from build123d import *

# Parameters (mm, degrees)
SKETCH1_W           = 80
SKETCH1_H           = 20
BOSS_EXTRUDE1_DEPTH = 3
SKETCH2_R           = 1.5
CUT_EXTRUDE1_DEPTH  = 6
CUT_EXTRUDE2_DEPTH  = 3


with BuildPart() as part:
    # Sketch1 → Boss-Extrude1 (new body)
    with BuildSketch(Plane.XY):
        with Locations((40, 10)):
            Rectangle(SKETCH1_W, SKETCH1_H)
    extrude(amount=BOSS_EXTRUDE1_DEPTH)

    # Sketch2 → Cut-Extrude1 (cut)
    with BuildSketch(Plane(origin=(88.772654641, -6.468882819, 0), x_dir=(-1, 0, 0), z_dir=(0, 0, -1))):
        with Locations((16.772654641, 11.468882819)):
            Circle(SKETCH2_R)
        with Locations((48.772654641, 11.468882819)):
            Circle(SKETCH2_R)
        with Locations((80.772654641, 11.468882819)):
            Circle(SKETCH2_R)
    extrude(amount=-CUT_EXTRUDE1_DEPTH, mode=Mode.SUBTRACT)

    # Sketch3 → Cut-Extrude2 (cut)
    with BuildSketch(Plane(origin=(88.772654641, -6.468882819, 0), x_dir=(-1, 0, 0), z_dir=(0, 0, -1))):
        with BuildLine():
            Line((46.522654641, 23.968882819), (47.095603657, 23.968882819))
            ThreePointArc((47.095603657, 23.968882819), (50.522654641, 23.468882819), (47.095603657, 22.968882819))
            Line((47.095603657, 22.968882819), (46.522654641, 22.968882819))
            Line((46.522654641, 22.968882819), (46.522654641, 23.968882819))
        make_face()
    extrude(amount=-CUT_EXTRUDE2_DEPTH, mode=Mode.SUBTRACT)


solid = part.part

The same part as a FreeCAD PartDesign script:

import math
import FreeCAD as App
import Part
import Sketcher
from FreeCAD import Vector
Q = App.Units.Quantity

doc = App.newDocument("Part")
body = doc.addObject("PartDesign::Body", "Body")

# Sketch on XY plane
sketch1 = body.newObject("Sketcher::SketchObject", "Sketch")
sketch1.AttachmentSupport = (doc.getObject("XY_Plane"), [""])
sketch1.MapMode = "FlatFace"
sketch1.addGeometry([
    Part.LineSegment(Vector(0, 20, 0), Vector(0, 0, 0)),
    Part.LineSegment(Vector(0, 0, 0), Vector(80, 0, 0)),
    Part.LineSegment(Vector(80, 0, 0), Vector(80, 20, 0)),
    Part.LineSegment(Vector(80, 20, 0), Vector(0, 20, 0)),
], False)
sketch1.addConstraint([
    Sketcher.Constraint("Coincident", 0, 2, 1, 1),
    Sketcher.Constraint("Coincident", 1, 2, 2, 1),
    Sketcher.Constraint("Coincident", 2, 2, 3, 1),
    Sketcher.Constraint("Coincident", 3, 2, 0, 1),
    Sketcher.Constraint("Vertical", 0),
    Sketcher.Constraint("Horizontal", 1),
    Sketcher.Constraint("Vertical", 2),
    Sketcher.Constraint("Horizontal", 3),
    Sketcher.Constraint("Coincident", 0, 2, -1, 1),
    Sketcher.Constraint("DistanceX", 1, 1, 1, 2, Q("80 mm")),
    Sketcher.Constraint("DistanceY", 0, 2, 0, 1, Q("20 mm")),
])
pad1 = body.newObject("PartDesign::Pad", "Pad")
pad1.Profile = sketch1
pad1.Length = 3

# Sketch on XY plane
sketch2 = body.newObject("Sketcher::SketchObject", "Sketch001")
sketch2.AttachmentSupport = (doc.getObject("XY_Plane"), [""])
sketch2.MapMode = "FlatFace"
sketch2.addGeometry([
    Part.Circle(Vector(72, 5, 0), Vector(0, 0, 1), 1.5),
    Part.Circle(Vector(40, 5, 0), Vector(0, 0, 1), 1.5),
    Part.Circle(Vector(8, 5, 0), Vector(0, 0, 1), 1.5),
], False)
sketch2.addConstraint([
    Sketcher.Constraint("Equal", 0, 1),
    Sketcher.Constraint("Equal", 1, 2),
    Sketcher.Constraint("Horizontal", 0, 3, 1, 3),
    Sketcher.Constraint("Horizontal", 1, 3, 2, 3),
    Sketcher.Constraint("Diameter", 0, Q("3 mm")),
    Sketcher.Constraint("DistanceX", -1, 1, 0, 3, Q("72 mm")),
    Sketcher.Constraint("DistanceY", -1, 1, 0, 3, Q("5 mm")),
    Sketcher.Constraint("DistanceX", -1, 1, 1, 3, Q("40 mm")),
    Sketcher.Constraint("DistanceX", -1, 1, 2, 3, Q("8 mm")),
])
pocket1 = body.newObject("PartDesign::Pocket", "Pocket")
pocket1.Profile = sketch2
pocket1.Length = 6
pocket1.Reversed = True

# Sketch on XY plane
sketch3 = body.newObject("Sketcher::SketchObject", "Sketch002")
sketch3.AttachmentSupport = (doc.getObject("XY_Plane"), [""])
sketch3.MapMode = "FlatFace"
sketch3.addGeometry([
    Part.LineSegment(Vector(41.7, 17.5, 0), Vector(42.2, 17.5, 0)),
    Part.LineSegment(Vector(42.2, 17.5, 0), Vector(42.2, 16.5, 0)),
    Part.LineSegment(Vector(42.2, 16.5, 0), Vector(41.7, 16.5, 0)),
    Part.ArcOfCircle(Part.Circle(Vector(40, 17, 0), Vector(0, 0, 1), 1.8), math.radians(17), math.radians(343)),
], False)
sketch3.addConstraint([
    Sketcher.Constraint("Coincident", 0, 2, 1, 1),
    Sketcher.Constraint("Coincident", 1, 2, 2, 1),
    Sketcher.Constraint("Coincident", 2, 2, 3, 2),
    Sketcher.Constraint("Coincident", 3, 1, 0, 1),
    Sketcher.Constraint("Horizontal", 0),
    Sketcher.Constraint("Vertical", 1),
    Sketcher.Constraint("Horizontal", 2),
    Sketcher.Constraint("Vertical", 2, 2, 3, 1),
    Sketcher.Constraint("DistanceY", 1, 2, 1, 1, Q("1 mm")),
    Sketcher.Constraint("Radius", 3, Q("1.75 mm")),
    Sketcher.Constraint("DistanceX", -1, 1, 3, 3, Q("40 mm")),
    Sketcher.Constraint("DistanceY", -1, 1, 3, 3, Q("17 mm")),
    Sketcher.Constraint("DistanceX", -1, 1, 0, 2, Q("42.25 mm")),
])
pocket2 = body.newObject("PartDesign::Pocket", "Pocket001")
pocket2.Profile = sketch3
pocket2.Length = 3
pocket2.Reversed = True

doc.recompute()
